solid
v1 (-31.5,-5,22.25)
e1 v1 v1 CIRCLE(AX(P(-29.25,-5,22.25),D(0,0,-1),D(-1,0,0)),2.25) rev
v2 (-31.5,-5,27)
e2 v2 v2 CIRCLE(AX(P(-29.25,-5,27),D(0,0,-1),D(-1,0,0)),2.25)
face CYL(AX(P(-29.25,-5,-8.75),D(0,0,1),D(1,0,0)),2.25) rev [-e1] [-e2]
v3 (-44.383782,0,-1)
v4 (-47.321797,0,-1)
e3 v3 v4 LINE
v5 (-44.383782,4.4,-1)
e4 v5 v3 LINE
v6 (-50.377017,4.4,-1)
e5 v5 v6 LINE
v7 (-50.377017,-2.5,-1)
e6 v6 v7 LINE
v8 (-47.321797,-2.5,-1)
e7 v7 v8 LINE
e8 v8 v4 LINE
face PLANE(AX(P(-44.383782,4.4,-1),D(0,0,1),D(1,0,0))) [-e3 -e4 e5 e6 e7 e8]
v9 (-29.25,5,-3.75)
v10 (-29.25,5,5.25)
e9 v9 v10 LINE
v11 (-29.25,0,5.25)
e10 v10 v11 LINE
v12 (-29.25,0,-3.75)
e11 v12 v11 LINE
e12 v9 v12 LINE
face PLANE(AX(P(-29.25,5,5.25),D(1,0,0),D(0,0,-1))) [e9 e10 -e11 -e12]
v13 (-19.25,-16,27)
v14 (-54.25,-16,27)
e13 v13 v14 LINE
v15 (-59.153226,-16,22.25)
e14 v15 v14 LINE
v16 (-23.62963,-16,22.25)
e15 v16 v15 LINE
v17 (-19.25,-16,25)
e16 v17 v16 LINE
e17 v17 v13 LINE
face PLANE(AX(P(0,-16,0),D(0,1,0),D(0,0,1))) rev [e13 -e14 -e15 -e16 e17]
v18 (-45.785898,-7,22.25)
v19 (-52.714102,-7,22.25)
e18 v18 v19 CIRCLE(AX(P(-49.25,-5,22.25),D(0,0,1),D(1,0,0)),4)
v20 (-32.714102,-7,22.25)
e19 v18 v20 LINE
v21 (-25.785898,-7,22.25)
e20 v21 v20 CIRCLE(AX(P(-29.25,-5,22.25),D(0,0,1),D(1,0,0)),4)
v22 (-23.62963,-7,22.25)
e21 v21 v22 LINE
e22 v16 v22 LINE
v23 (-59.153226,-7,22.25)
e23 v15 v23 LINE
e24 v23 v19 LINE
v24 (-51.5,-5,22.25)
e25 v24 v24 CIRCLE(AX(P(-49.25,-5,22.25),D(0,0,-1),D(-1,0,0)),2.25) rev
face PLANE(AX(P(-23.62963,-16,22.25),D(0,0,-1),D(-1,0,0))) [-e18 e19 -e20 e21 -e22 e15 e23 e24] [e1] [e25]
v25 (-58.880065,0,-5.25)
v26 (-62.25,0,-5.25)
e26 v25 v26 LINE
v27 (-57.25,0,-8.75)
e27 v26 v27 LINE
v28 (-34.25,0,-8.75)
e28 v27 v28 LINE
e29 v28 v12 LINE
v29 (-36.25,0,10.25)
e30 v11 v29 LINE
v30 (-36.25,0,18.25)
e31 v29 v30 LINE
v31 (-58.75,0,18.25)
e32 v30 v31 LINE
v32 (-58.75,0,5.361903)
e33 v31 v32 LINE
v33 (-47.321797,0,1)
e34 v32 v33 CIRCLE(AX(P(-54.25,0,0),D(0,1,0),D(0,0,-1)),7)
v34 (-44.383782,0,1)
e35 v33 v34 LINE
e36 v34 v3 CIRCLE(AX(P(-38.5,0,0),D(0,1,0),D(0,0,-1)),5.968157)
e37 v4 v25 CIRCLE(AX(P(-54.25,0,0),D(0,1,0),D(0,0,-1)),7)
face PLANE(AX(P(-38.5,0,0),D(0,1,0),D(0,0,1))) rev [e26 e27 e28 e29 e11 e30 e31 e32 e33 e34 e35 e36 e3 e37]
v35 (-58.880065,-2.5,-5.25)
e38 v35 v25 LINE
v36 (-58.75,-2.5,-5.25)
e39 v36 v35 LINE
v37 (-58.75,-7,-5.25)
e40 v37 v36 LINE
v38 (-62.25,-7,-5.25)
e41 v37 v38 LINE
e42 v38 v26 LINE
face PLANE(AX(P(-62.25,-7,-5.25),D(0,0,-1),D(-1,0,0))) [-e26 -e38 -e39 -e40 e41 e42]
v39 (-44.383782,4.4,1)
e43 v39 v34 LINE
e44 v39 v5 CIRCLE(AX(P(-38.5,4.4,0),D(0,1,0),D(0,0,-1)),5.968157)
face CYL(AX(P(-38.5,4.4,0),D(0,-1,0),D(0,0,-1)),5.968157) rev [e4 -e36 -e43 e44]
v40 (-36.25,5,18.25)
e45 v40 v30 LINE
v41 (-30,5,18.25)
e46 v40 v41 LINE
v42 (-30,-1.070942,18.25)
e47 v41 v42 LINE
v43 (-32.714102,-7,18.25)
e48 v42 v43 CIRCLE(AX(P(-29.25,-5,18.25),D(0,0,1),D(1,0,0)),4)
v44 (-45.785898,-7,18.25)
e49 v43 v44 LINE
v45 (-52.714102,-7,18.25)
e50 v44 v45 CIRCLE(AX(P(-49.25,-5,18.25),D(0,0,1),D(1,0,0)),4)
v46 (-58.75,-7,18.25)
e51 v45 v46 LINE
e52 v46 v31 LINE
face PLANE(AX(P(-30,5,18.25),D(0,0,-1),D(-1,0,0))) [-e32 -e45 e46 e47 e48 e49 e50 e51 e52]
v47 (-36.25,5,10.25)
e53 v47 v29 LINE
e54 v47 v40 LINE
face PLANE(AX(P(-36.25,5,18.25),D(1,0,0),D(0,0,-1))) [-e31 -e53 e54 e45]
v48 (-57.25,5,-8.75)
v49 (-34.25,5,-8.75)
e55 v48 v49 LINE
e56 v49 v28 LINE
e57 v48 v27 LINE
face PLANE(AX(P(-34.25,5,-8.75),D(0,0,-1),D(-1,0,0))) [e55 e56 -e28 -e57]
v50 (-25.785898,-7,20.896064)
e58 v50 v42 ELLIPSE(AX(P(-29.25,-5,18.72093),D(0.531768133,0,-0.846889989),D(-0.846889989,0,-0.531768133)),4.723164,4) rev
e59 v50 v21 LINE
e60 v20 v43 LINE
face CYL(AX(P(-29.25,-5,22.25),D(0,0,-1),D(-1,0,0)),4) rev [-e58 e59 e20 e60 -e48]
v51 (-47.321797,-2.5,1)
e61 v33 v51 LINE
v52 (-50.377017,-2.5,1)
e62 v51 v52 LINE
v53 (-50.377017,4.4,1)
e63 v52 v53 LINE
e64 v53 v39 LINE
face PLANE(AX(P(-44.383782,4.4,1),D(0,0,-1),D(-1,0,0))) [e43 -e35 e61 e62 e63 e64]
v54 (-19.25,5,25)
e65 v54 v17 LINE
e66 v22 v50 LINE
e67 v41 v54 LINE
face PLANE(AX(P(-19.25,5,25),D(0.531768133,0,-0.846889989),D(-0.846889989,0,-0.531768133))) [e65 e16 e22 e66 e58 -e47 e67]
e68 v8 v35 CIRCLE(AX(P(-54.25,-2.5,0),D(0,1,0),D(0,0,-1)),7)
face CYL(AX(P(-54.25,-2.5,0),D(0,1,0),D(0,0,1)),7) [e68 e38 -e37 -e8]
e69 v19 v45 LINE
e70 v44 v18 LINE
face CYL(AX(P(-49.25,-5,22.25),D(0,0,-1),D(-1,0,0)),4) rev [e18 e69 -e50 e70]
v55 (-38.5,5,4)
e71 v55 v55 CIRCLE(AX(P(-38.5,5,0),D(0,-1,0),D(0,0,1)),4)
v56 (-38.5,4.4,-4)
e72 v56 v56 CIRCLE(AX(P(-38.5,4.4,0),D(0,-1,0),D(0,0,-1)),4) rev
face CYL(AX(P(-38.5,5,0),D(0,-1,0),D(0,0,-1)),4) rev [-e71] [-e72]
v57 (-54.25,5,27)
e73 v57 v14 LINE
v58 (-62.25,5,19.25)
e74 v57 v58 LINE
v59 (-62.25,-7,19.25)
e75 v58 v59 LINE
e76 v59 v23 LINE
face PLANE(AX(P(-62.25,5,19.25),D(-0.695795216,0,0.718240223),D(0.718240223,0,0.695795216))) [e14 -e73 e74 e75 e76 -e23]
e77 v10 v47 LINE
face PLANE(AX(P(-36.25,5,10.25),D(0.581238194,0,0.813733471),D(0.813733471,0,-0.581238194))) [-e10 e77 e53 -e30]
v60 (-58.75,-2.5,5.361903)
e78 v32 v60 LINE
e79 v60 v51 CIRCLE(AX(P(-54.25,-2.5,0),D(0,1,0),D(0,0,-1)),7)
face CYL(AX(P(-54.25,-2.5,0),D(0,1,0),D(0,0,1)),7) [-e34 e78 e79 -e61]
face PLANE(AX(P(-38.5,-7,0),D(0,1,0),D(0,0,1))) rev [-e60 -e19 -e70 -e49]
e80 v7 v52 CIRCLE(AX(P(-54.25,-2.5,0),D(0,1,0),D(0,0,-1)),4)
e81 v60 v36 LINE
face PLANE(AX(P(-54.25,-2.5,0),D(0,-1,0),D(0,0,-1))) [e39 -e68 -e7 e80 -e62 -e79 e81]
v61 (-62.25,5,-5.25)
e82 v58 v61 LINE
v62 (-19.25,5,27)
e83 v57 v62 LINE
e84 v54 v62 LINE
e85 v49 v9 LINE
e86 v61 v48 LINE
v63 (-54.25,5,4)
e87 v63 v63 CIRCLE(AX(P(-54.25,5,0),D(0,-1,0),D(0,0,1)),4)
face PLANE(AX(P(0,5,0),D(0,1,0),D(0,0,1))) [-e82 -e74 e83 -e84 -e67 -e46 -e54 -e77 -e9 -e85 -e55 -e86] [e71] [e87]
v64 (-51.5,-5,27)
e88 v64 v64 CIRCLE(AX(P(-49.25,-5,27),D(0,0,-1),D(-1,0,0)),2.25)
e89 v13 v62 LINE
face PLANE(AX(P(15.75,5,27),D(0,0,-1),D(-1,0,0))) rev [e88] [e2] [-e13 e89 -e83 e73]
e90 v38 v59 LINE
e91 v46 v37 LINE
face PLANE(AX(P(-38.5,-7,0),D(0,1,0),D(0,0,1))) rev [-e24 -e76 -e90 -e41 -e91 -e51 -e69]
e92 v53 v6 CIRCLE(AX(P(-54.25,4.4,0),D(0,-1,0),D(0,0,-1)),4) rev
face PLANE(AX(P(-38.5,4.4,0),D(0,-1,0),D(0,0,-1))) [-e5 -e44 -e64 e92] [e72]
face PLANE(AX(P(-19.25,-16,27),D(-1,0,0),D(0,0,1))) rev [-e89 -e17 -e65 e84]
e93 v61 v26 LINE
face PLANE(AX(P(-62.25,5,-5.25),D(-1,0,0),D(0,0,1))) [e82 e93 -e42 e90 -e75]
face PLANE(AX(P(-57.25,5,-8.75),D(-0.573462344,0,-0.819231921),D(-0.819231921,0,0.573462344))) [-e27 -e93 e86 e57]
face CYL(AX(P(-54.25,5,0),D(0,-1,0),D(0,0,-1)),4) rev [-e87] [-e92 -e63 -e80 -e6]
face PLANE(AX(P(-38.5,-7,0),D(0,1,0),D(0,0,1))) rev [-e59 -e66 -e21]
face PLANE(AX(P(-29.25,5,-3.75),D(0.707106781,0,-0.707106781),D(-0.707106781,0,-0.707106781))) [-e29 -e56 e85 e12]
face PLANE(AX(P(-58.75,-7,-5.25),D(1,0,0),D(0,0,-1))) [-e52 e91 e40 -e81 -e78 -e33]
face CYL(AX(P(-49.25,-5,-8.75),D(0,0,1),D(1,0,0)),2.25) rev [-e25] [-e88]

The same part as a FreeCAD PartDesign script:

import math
import FreeCAD as App
import Part
import Sketcher

V = App.Vector
Q = App.Units.Quantity

doc = App.newDocument("Part")
params = doc.addObject("Spreadsheet::Sheet", "Params")
for row, (alias, value) in enumerate([
    ("sketch1_diameter", "8 mm"),
    ("sketch1_width", "23 mm"),
    ("sketch1_width2", "35 mm"),
    ("sketch1_height", "9 mm"),
    ("sketch1_height2", "8 mm"),
    ("pad1_length", "5 mm"),
    ("sketch2_width", "3.5 mm"),
    ("sketch2_height", "24.5 mm"),
    ("sketch2_height2", "23.5 mm"),
    ("sketch2_width2", "28.75 mm"),
    ("pad2_length", "7 mm"),
    ("sketch3_width", "35 mm"),
    ("sketch3_height", "2 mm"),
    ("pad3_length", "16 mm"),
    ("sketch4_diameter", "14 mm"),
    ("sketch4_diameter2", "8 mm"),
    ("pad4_length", "2.5 mm"),
    ("sketch5_radius", "3.5 mm"),
    ("pocket1_length", "4.4 mm"),
    ("sketch6_radius", "4 mm"),
    ("sketch7_diameter", "4.5 mm"),
    ("sketch8_diameter", "8 mm"),
    ("pocket4_length", "4 mm"),
    ("sketch9_height", "35.75 mm"),
], start=1):
    params.set(f"A{row}", alias)
    params.set(f"B{row}", "=" + value)
    params.setAlias(f"B{row}", alias)

body = doc.addObject("PartDesign::Body", "Body")

sketch1 = body.newObject("Sketcher::SketchObject", "Sketch")
sketch1.AttachmentSupport = (doc.getObject("XZ_Plane"), [""])
sketch1.MapMode = "FlatFace"
sketch1.addGeometry([
    Part.LineSegment(V(18.8, -8.8, 0), V(-4.2, -8.8, 0)),
    Part.LineSegment(V(-4.2, -8.8, 0), V(-9.2, -3.8, 0)),
    Part.LineSegment(V(-9.2, -3.8, 0), V(-9.2, 5.2, 0)),
    Part.LineSegment(V(-9.2, 5.2, 0), V(-2.2, 10.2, 0)),
    Part.LineSegment(V(-2.2, 10.2, 0), V(-2.2, 18.2, 0)),
    Part.LineSegment(V(-2.2, 18.2, 0), V(-8.5, 18.2, 0)),
    Part.LineSegment(V(-8.5, 18.2, 0), V(-19.2, 25, 0)),
    Part.LineSegment(V(-19.2, 25, 0), V(-19.2, 27, 0)),
    Part.LineSegment(V(-19.2, 27, 0), V(15.8, 27, 0)),
    Part.LineSegment(V(15.8, 27, 0), V(23.8, 19.2, 0)),
    Part.LineSegment(V(23.8, 19.2, 0), V(23.8, -5.2, 0)),
    Part.LineSegment(V(23.8, -5.2, 0), V(18.8, -8.8, 0)),
    Part.Circle(V(15.8, 0, 0), V(0, 0, 1), 4),
    Part.Circle(V(0, 0, 0), V(0, 0, 1), 4),
], False)
sketch1.addConstraint([
    Sketcher.Constraint("Coincident", 0, 2, 1, 1),
    Sketcher.Constraint("Coincident", 1, 2, 2, 1),
    Sketcher.Constraint("Coincident", 2, 2, 3, 1),
    Sketcher.Constraint("Coincident", 3, 2, 4, 1),
    Sketcher.Constraint("Coincident", 4, 2, 5, 1),
    Sketcher.Constraint("Coincident", 5, 2, 6, 1),
    Sketcher.Constraint("Coincident", 6, 2, 7, 1),
    Sketcher.Constraint("Coincident", 7, 2, 8, 1),
    Sketcher.Constraint("Coincident", 8, 2, 9, 1),
    Sketcher.Constraint("Coincident", 9, 2, 10, 1),
    Sketcher.Constraint("Coincident", 10, 2, 11, 1),
    Sketcher.Constraint("Coincident", 11, 2, 0, 1),
    Sketcher.Constraint("Horizontal", 0),
    Sketcher.Constraint("Vertical", 2),
    Sketcher.Constraint("Vertical", 4),
    Sketcher.Constraint("Horizontal", 5),
    Sketcher.Constraint("Vertical", 7),
    Sketcher.Constraint("Horizontal", 8),
    Sketcher.Constraint("Vertical", 10),
    Sketcher.Constraint("Coincident", 13, 3, -1, 1),
    Sketcher.Constraint("Equal", 12, 13),
    Sketcher.Constraint("PointOnObject", 12, 3, -1),
    Sketcher.Constraint("Vertical", 12, 3, 8, 2),
    Sketcher.Constraint("Diameter", 12, Q("8 mm")),
    Sketcher.Constraint("DistanceX", 0, 2, 0, 1, Q("23 mm")),
    Sketcher.Constraint("DistanceX", 8, 1, 8, 2, Q("35 mm")),
    Sketcher.Constraint("DistanceY", 2, 1, 2, 2, Q("9 mm")),
    Sketcher.Constraint("DistanceY", 4, 1, 4, 2, Q("8 mm")),
    Sketcher.Constraint("DistanceY", 7, 1, 7, 2, Q("2 mm")),
    Sketcher.Constraint("Angle", 1, Q("135 deg")),
    Sketcher.Constraint("DistanceY", 10, 2, 10, 1, Q("24.5 mm")),
    Sketcher.Constraint("DistanceY", -1, 1, 6, 2, Q("25 mm")),
    Sketcher.Constraint("DistanceX", 0, 2, 12, 3, Q("20 mm")),
    Sketcher.Constraint("DistanceX", 1, 2, 0, 2, Q("5 mm")),
    Sketcher.Constraint("DistanceX", 2, 2, 3, 2, Q("7 mm")),
    Sketcher.Constraint("DistanceY", 2, 2, 3, 2, Q("5 mm")),
    Sketcher.Constraint("DistanceX", 8, 2, 9, 2, Q("8 mm")),
    Sketcher.Constraint("DistanceY", 4, 2, 9, 2, Q("1 mm")),
    Sketcher.Constraint("DistanceX", 5, 2, 5, 1, Q("6.25 mm")),
    Sketcher.Constraint("DistanceX", 5, 2, -1, 1, Q("8.5 mm")),
    Sketcher.Constraint("DistanceY", 0, 2, -1, 1, Q("8.75 mm")),
])
sketch1.setExpression("Constraints[23]", "Params.sketch1_diameter")
sketch1.setExpression("Constraints[24]", "Params.sketch1_width")
sketch1.setExpression("Constraints[25]", "Params.sketch1_width2")
sketch1.setExpression("Constraints[26]", "Params.sketch1_height")
sketch1.setExpression("Constraints[27]", "Params.sketch1_height2")
pad1 = body.newObject("PartDesign::Pad", "Pad")
pad1.Profile = sketch1
pad1.setExpression("Length", "Params.pad1_length")
pad1.Reversed = True

sketch2 = body.newObject("Sketcher::SketchObject", "Sketch001")
sketch2.AttachmentSupport = (doc.getObject("XZ_Plane"), [""])
sketch2.MapMode = "FlatFace"
sketch2.addGeometry([
    Part.LineSegment(V(23.8, -5.2, 0), V(23.8, 19.2, 0)),
    Part.LineSegment(V(23.8, 19.2, 0), V(20.7, 22.2, 0)),
    Part.LineSegment(V(20.7, 22.2, 0), V(-14.9, 22.2, 0)),
    Part.LineSegment(V(-14.9, 22.2, 0), V(-8.5, 18.2, 0)),
    Part.LineSegment(V(-8.5, 18.2, 0), V(20.2, 18.2, 0)),
    Part.LineSegment(V(20.2, 18.2, 0), V(20.2, -5.2, 0)),
    Part.LineSegment(V(20.2, -5.2, 0), V(23.8, -5.2, 0)),
], False)
sketch2.addConstraint([
    Sketcher.Constraint("Coincident", 0, 2, 1, 1),
    Sketcher.Constraint("Coincident", 1, 2, 2, 1),
    Sketcher.Constraint("Coincident", 2, 2, 3, 1),
    Sketcher.Constraint("Coincident", 3, 2, 4, 1),
    Sketcher.Constraint("Coincident", 4, 2, 5, 1),
    Sketcher.Constraint("Coincident", 5, 2, 6, 1),
    Sketcher.Constraint("Coincident", 6, 2, 0, 1),
    Sketcher.Constraint("Vertical", 0),
    Sketcher.Constraint("Horizontal", 2),
    Sketcher.Constraint("Horizontal", 4),
    Sketcher.Constraint("Vertical", 5),
    Sketcher.Constraint("Horizontal", 6),
    Sketcher.Constraint("DistanceX", 6, 1, 6, 2, Q("3.5 mm")),
    Sketcher.Constraint("DistanceY", 0, 1, 0, 2, Q("24.5 mm")),
    Sketcher.Constraint("DistanceY", 5, 2, 5, 1, Q("23.5 mm")),
    Sketcher.Constraint("DistanceY", 0, 2, 1, 2, Q("3 mm")),
    Sketcher.Constraint("DistanceX", 4, 1, 4, 2, Q("28.75 mm")),
    Sketcher.Constraint("DistanceX", 3, 2, -1, 1, Q("8.5 mm")),
    Sketcher.Constraint("DistanceY", -1, 1, 0, 2, Q("19.25 mm")),
    Sketcher.Constraint("DistanceX", 2, 2, 2, 1, Q("35.523596 mm")),
    Sketcher.Constraint("DistanceX", 2, 2, -1, 1, Q("14.87037 mm")),
])
sketch2.setExpression("Constraints[12]", "Params.sketch2_width")
sketch2.setExpression("Constraints[13]", "Params.sketch2_height")
sketch2.setExpression("Constraints[14]", "Params.sketch2_height2")
sketch2.setExpression("Constraints[16]", "Params.sketch2_width2")
pad2 = body.newObject("PartDesign::Pad", "Pad001")
pad2.Profile = sketch2
pad2.setExpression("Length", "Params.pad2_length")

sketch3 = body.newObject("Sketcher::SketchObject", "Sketch002")
sketch3.AttachmentSupport = (doc.getObject("XZ_Plane"), [""])
sketch3.MapMode = "FlatFace"
sketch3.addGeometry([
    Part.LineSegment(V(-14.9, 22.2, 0), V(20.7, 22.2, 0)),
    Part.LineSegment(V(20.7, 22.2, 0), V(15.8, 27, 0)),
    Part.LineSegment(V(15.8, 27, 0), V(-19.2, 27, 0)),
    Part.LineSegment(V(-19.2, 27, 0), V(-19.2, 25, 0)),
    Part.LineSegment(V(-19.2, 25, 0), V(-14.9, 22.2, 0)),
], False)
sketch3.addConstraint([
    Sketcher.Constraint("Coincident", 0, 2, 1, 1),
    Sketcher.Constraint("Coincident", 1, 2, 2, 1),
    Sketcher.Constraint("Coincident", 2, 2, 3, 1),
    Sketcher.Constraint("Coincident", 3, 2, 4, 1),
    Sketcher.Constraint("Coincident", 4, 2, 0, 1),
    Sketcher.Constraint("Horizontal", 0),
    Sketcher.Constraint("Horizontal", 2),
    Sketcher.Constraint("Vertical", 3),
    Sketcher.Constraint("DistanceX", 2, 2, 2, 1, Q("35 mm")),
    Sketcher.Constraint("DistanceY", 3, 2, 3, 1, Q("2 mm")),
    Sketcher.Constraint("DistanceY", -1, 1, 1, 2, Q("27 mm")),
    Sketcher.Constraint("DistanceY", -1, 1, 0, 2, Q("22.25 mm")),
    Sketcher.Constraint("DistanceX", -1, 1, 1, 2, Q("15.75 mm")),
    Sketcher.Constraint("Distance", 1, Q("6.826721 mm")),
    Sketcher.Constraint("DistanceX", 0, 1, 0, 2, Q("35.523596 mm")),
])
sketch3.setExpression("Constraints[8]", "Params.sketch3_width")
sketch3.setExpression("Constraints[9]", "Params.sketch3_height")
pad3 = body.newObject("PartDesign::Pad", "Pad002")
pad3.Profile = sketch3
pad3.setExpression("Length", "Params.pad3_length")

sketch4 = body.newObject("Sketcher::SketchObject", "Sketch003")
sketch4.AttachmentSupport = (doc.getObject("XZ_Plane"), [""])
sketch4.MapMode = "FlatFace"
sketch4.addGeometry([
    Part.Circle(V(15.8, 0, 0), V(0, 0, 1), 7),
    Part.Circle(V(15.8, 0, 0), V(0, 0, 1), 4),
], False)
sketch4.addConstraint([
    Sketcher.Constraint("Coincident", 1, 3, 0, 3),
    Sketcher.Constraint("PointOnObject", 0, 3, -1),
    Sketcher.Constraint("Diameter", 0, Q("14 mm")),
    Sketcher.Constraint("Diameter", 1, Q("8 mm")),
    Sketcher.Constraint("DistanceX", -1, 1, 0, 3, Q("15.75 mm")),
])
sketch4.setExpression("Constraints[2]", "Params.sketch4_diameter")
sketch4.setExpression("Constraints[3]", "Params.sketch4_diameter2")
pad4 = body.newObject("PartDesign::Pad", "Pad003")
pad4.Profile = sketch4
pad4.setExpression("Length", "Params.pad4_length")

sketch5 = body.newObject("Sketcher::SketchObject", "Sketch004")
sketch5.AttachmentSupport = (doc.getObject("XZ_Plane"), [""])
sketch5.MapMode = "FlatFace"
sketch5.addGeometry([
    Part.LineSegment(V(5.9, -1, 0), V(12.4, -1, 0)),
    Part.ArcOfCircle(Part.Circle(V(15.7, 0, 0), V(0, 0, 1), 3.5), math.radians(163), math.radians(197)),
    Part.LineSegment(V(12.4, 1, 0), V(5.9, 1, 0)),
    Part.ArcOfCircle(Part.Circle(V(0, 0, 0), V(0, 0, 1), 6), math.radians(10), math.radians(350)),
], False)
sketch5.addConstraint([
    Sketcher.Constraint("Coincident", 0, 2, 1, 2),
    Sketcher.Constraint("Coincident", 1, 1, 2, 1),
    Sketcher.Constraint("Coincident", 2, 2, 3, 1),
    Sketcher.Constraint("Coincident", 3, 2, 0, 1),
    Sketcher.Constraint("Horizontal", 0),
    Sketcher.Constraint("Horizontal", 2),
    Sketcher.Constraint("Coincident", 3, 3, -1, 1),
    Sketcher.Constraint("Symmetric", 0, 2, 1, 1, -1),
    Sketcher.Constraint("Radius", 1, Q("3.5 mm")),
    Sketcher.Constraint("DistanceY", 0, 2, -1, 1, Q("1 mm")),
    Sketcher.Constraint("DistanceX", -1, 1, 1, 3, Q("15.75 mm")),
    Sketcher.Constraint("Radius", 3, Q("5.968157 mm")),
])
sketch5.setExpression("Constraints[8]", "Params.sketch5_radius")
pocket1 = body.newObject("PartDesign::Pocket", "Pocket")
pocket1.Profile = sketch5
pocket1.setExpression("Length", "Params.pocket1_length")

sketch6 = body.newObject("Sketcher::SketchObject", "Sketch005")
sketch6.AttachmentSupport = (doc.getObject("XZ_Plane"), [""])
sketch6.MapMode = "FlatFace"
sketch6.AttachmentOffset = App.Placement(V(0, 0, -4.4), App.Rotation())
sketch6.addGeometry([
    Part.LineSegment(V(5.9, -1, 0), V(11.9, -1, 0)),
    Part.ArcOfCircle(Part.Circle(V(15.7, 0, 0), V(0, 0, 1), 4), math.radians(166), math.radians(194)),
    Part.LineSegment(V(11.9, 1, 0), V(5.9, 1, 0)),
    Part.ArcOfCircle(Part.Circle(V(0, 0, 0), V(0, 0, 1), 6), math.radians(10), math.radians(350)),
], False)
sketch6.addConstraint([
    Sketcher.Constraint("Coincident", 0, 2, 1, 2),
    Sketcher.Constraint("Coincident", 1, 1, 2, 1),
    Sketcher.Constraint("Coincident", 2, 2, 3, 1),
    Sketcher.Constraint("Coincident", 3, 2, 0, 1),
    Sketcher.Constraint("Horizontal", 0),
    Sketcher.Constraint("Horizontal", 2),
    Sketcher.Constraint("Coincident", 3, 3, -1, 1),
    Sketcher.Constraint("Symmetric", 0, 2, 1, 1, -1),
    Sketcher.Constraint("Radius", 1, Q("4 mm")),
    Sketcher.Constraint("DistanceY", 0, 2, -1, 1, Q("1 mm")),
    Sketcher.Constraint("DistanceX", -1, 1, 1, 3, Q("15.75 mm")),
    Sketcher.Constraint("Radius", 3, Q("5.968157 mm")),
])
sketch6.setExpression("Constraints[8]", "Params.sketch6_radius")
pocket2 = body.newObject("PartDesign::Pocket", "Pocket001")
pocket2.Profile = sketch6
pocket2.Type = "ThroughAll"
pocket2.Reversed = True

sketch7 = body.newObject("Sketcher::SketchObject", "Sketch006")
sketch7.AttachmentSupport = (doc.getObject("XY_Plane"), [""])
sketch7.MapMode = "FlatFace"
sketch7.AttachmentOffset = App.Placement(V(0, 0, 27), App.Rotation())
sketch7.addGeometry([
    Part.Circle(V(10.8, -5, 0), V(0, 0, 1), 2.2),
    Part.Circle(V(-9.2, -5, 0), V(0, 0, 1), 2.2),
], False)
sketch7.addConstraint([
    Sketcher.Constraint("Equal", 0, 1),
    Sketcher.Constraint("Horizontal", 0, 3, 1, 3),
    Sketcher.Constraint("Diameter", 0, Q("4.5 mm")),
    Sketcher.Constraint("DistanceY", 0, 3, -1, 1, Q("5 mm")),
    Sketcher.Constraint("DistanceX", 1, 3, 0, 3, Q("20 mm")),
    Sketcher.Constraint("DistanceX", -1, 1, 0, 3, Q("10.75 mm")),
])
sketch7.setExpression("Constraints[2]", "Params.sketch7_diameter")
pocket3 = body.newObject("PartDesign::Pocket", "Pocket002")
pocket3.Profile = sketch7
pocket3.Type = "ThroughAll"

sketch8 = body.newObject("Sketcher::SketchObject", "Sketch007")
sketch8.AttachmentSupport = (doc.getObject("XY_Plane"), [""])
sketch8.MapMode = "FlatFace"
sketch8.AttachmentOffset = App.Placement(V(0, 0, 18.25), App.Rotation())
sketch8.addGeometry([
    Part.Circle(V(10.8, -5, 0), V(0, 0, 1), 4),
    Part.Circle(V(-9.2, -5, 0), V(0, 0, 1), 4),
], False)
sketch8.addConstraint([
    Sketcher.Constraint("Equal", 0, 1),
    Sketcher.Constraint("Horizontal", 0, 3, 1, 3),
    Sketcher.Constraint("Diameter", 0, Q("8 mm")),
    Sketcher.Constraint("DistanceY", 0, 3, -1, 1, Q("5 mm")),
    Sketcher.Constraint("DistanceX", 1, 3, 0, 3, Q("20 mm")),
    Sketcher.Constraint("DistanceX", -1, 1, 0, 3, Q("10.75 mm")),
])
sketch8.setExpression("Constraints[2]", "Params.sketch8_diameter")
pocket4 = body.newObject("PartDesign::Pocket", "Pocket003")
pocket4.Profile = sketch8
pocket4.setExpression("Length", "Params.pocket4_length")
pocket4.Reversed = True
doc.recompute()

datumplane = body.newObject("PartDesign::Plane", "DatumPlane")
datumplane.AttachmentSupport = (doc.getObject("YZ_Plane"), [""])
datumplane.MapMode = "FlatFace"
datumplane.AttachmentOffset = App.Placement(V(0, 0, -19.25), App.Rotation())
mirrored = body.newObject("PartDesign::Mirrored", "Mirrored")
mirrored.Originals = [pad1, pad2, pad3, pad4, pocket1, pocket2, pocket3, pocket4]
mirrored.MirrorPlane = (datumplane, [""])
body.Tip = mirrored

sketch9 = body.newObject("Sketcher::SketchObject", "Sketch008")
sketch9.AttachmentSupport = (doc.getObject("XZ_Plane"), [""])
sketch9.MapMode = "FlatFace"
sketch9.AttachmentOffset = App.Placement(V(0, 0, -5), App.Rotation())
sketch9.addGeometry([
    Part.LineSegment(V(-19, -9, 0), V(-19, 27, 0)),
    Part.LineSegment(V(-19, 27, 0), V(30, 27, 0)),
    Part.LineSegment(V(30, 27, 0), V(30, -9, 0)),
    Part.LineSegment(V(30, -9, 0), V(-19, -9, 0)),
], False)
sketch9.addConstraint([
    Sketcher.Constraint("Coincident", 0, 2, 1, 1),
    Sketcher.Constraint("Coincident", 1, 2, 2, 1),
    Sketcher.Constraint("Coincident", 2, 2, 3, 1),
    Sketcher.Constraint("Coincident", 3, 2, 0, 1),
    Sketcher.Constraint("Vertical", 0),
    Sketcher.Constraint("Horizontal", 1),
    Sketcher.Constraint("Vertical", 2),
    Sketcher.Constraint("Horizontal", 3),
    Sketcher.Constraint("DistanceY", -1, 1, 0, 2, Q("27 mm")),
    Sketcher.Constraint("DistanceY", 0, 1, 0, 2, Q("35.75 mm")),
    Sketcher.Constraint("DistanceX", 0, 2, -1, 1, Q("19.25 mm")),
    Sketcher.Constraint("DistanceX", 1, 1, 1, 2, Q("49.722079 mm")),
])
sketch9.setExpression("Constraints[9]", "Params.sketch9_height")
pocket5 = body.newObject("PartDesign::Pocket", "Pocket004")
pocket5.Profile = sketch9
pocket5.Type = "ThroughAll"
pocket5.Reversed = True

doc.recompute()
